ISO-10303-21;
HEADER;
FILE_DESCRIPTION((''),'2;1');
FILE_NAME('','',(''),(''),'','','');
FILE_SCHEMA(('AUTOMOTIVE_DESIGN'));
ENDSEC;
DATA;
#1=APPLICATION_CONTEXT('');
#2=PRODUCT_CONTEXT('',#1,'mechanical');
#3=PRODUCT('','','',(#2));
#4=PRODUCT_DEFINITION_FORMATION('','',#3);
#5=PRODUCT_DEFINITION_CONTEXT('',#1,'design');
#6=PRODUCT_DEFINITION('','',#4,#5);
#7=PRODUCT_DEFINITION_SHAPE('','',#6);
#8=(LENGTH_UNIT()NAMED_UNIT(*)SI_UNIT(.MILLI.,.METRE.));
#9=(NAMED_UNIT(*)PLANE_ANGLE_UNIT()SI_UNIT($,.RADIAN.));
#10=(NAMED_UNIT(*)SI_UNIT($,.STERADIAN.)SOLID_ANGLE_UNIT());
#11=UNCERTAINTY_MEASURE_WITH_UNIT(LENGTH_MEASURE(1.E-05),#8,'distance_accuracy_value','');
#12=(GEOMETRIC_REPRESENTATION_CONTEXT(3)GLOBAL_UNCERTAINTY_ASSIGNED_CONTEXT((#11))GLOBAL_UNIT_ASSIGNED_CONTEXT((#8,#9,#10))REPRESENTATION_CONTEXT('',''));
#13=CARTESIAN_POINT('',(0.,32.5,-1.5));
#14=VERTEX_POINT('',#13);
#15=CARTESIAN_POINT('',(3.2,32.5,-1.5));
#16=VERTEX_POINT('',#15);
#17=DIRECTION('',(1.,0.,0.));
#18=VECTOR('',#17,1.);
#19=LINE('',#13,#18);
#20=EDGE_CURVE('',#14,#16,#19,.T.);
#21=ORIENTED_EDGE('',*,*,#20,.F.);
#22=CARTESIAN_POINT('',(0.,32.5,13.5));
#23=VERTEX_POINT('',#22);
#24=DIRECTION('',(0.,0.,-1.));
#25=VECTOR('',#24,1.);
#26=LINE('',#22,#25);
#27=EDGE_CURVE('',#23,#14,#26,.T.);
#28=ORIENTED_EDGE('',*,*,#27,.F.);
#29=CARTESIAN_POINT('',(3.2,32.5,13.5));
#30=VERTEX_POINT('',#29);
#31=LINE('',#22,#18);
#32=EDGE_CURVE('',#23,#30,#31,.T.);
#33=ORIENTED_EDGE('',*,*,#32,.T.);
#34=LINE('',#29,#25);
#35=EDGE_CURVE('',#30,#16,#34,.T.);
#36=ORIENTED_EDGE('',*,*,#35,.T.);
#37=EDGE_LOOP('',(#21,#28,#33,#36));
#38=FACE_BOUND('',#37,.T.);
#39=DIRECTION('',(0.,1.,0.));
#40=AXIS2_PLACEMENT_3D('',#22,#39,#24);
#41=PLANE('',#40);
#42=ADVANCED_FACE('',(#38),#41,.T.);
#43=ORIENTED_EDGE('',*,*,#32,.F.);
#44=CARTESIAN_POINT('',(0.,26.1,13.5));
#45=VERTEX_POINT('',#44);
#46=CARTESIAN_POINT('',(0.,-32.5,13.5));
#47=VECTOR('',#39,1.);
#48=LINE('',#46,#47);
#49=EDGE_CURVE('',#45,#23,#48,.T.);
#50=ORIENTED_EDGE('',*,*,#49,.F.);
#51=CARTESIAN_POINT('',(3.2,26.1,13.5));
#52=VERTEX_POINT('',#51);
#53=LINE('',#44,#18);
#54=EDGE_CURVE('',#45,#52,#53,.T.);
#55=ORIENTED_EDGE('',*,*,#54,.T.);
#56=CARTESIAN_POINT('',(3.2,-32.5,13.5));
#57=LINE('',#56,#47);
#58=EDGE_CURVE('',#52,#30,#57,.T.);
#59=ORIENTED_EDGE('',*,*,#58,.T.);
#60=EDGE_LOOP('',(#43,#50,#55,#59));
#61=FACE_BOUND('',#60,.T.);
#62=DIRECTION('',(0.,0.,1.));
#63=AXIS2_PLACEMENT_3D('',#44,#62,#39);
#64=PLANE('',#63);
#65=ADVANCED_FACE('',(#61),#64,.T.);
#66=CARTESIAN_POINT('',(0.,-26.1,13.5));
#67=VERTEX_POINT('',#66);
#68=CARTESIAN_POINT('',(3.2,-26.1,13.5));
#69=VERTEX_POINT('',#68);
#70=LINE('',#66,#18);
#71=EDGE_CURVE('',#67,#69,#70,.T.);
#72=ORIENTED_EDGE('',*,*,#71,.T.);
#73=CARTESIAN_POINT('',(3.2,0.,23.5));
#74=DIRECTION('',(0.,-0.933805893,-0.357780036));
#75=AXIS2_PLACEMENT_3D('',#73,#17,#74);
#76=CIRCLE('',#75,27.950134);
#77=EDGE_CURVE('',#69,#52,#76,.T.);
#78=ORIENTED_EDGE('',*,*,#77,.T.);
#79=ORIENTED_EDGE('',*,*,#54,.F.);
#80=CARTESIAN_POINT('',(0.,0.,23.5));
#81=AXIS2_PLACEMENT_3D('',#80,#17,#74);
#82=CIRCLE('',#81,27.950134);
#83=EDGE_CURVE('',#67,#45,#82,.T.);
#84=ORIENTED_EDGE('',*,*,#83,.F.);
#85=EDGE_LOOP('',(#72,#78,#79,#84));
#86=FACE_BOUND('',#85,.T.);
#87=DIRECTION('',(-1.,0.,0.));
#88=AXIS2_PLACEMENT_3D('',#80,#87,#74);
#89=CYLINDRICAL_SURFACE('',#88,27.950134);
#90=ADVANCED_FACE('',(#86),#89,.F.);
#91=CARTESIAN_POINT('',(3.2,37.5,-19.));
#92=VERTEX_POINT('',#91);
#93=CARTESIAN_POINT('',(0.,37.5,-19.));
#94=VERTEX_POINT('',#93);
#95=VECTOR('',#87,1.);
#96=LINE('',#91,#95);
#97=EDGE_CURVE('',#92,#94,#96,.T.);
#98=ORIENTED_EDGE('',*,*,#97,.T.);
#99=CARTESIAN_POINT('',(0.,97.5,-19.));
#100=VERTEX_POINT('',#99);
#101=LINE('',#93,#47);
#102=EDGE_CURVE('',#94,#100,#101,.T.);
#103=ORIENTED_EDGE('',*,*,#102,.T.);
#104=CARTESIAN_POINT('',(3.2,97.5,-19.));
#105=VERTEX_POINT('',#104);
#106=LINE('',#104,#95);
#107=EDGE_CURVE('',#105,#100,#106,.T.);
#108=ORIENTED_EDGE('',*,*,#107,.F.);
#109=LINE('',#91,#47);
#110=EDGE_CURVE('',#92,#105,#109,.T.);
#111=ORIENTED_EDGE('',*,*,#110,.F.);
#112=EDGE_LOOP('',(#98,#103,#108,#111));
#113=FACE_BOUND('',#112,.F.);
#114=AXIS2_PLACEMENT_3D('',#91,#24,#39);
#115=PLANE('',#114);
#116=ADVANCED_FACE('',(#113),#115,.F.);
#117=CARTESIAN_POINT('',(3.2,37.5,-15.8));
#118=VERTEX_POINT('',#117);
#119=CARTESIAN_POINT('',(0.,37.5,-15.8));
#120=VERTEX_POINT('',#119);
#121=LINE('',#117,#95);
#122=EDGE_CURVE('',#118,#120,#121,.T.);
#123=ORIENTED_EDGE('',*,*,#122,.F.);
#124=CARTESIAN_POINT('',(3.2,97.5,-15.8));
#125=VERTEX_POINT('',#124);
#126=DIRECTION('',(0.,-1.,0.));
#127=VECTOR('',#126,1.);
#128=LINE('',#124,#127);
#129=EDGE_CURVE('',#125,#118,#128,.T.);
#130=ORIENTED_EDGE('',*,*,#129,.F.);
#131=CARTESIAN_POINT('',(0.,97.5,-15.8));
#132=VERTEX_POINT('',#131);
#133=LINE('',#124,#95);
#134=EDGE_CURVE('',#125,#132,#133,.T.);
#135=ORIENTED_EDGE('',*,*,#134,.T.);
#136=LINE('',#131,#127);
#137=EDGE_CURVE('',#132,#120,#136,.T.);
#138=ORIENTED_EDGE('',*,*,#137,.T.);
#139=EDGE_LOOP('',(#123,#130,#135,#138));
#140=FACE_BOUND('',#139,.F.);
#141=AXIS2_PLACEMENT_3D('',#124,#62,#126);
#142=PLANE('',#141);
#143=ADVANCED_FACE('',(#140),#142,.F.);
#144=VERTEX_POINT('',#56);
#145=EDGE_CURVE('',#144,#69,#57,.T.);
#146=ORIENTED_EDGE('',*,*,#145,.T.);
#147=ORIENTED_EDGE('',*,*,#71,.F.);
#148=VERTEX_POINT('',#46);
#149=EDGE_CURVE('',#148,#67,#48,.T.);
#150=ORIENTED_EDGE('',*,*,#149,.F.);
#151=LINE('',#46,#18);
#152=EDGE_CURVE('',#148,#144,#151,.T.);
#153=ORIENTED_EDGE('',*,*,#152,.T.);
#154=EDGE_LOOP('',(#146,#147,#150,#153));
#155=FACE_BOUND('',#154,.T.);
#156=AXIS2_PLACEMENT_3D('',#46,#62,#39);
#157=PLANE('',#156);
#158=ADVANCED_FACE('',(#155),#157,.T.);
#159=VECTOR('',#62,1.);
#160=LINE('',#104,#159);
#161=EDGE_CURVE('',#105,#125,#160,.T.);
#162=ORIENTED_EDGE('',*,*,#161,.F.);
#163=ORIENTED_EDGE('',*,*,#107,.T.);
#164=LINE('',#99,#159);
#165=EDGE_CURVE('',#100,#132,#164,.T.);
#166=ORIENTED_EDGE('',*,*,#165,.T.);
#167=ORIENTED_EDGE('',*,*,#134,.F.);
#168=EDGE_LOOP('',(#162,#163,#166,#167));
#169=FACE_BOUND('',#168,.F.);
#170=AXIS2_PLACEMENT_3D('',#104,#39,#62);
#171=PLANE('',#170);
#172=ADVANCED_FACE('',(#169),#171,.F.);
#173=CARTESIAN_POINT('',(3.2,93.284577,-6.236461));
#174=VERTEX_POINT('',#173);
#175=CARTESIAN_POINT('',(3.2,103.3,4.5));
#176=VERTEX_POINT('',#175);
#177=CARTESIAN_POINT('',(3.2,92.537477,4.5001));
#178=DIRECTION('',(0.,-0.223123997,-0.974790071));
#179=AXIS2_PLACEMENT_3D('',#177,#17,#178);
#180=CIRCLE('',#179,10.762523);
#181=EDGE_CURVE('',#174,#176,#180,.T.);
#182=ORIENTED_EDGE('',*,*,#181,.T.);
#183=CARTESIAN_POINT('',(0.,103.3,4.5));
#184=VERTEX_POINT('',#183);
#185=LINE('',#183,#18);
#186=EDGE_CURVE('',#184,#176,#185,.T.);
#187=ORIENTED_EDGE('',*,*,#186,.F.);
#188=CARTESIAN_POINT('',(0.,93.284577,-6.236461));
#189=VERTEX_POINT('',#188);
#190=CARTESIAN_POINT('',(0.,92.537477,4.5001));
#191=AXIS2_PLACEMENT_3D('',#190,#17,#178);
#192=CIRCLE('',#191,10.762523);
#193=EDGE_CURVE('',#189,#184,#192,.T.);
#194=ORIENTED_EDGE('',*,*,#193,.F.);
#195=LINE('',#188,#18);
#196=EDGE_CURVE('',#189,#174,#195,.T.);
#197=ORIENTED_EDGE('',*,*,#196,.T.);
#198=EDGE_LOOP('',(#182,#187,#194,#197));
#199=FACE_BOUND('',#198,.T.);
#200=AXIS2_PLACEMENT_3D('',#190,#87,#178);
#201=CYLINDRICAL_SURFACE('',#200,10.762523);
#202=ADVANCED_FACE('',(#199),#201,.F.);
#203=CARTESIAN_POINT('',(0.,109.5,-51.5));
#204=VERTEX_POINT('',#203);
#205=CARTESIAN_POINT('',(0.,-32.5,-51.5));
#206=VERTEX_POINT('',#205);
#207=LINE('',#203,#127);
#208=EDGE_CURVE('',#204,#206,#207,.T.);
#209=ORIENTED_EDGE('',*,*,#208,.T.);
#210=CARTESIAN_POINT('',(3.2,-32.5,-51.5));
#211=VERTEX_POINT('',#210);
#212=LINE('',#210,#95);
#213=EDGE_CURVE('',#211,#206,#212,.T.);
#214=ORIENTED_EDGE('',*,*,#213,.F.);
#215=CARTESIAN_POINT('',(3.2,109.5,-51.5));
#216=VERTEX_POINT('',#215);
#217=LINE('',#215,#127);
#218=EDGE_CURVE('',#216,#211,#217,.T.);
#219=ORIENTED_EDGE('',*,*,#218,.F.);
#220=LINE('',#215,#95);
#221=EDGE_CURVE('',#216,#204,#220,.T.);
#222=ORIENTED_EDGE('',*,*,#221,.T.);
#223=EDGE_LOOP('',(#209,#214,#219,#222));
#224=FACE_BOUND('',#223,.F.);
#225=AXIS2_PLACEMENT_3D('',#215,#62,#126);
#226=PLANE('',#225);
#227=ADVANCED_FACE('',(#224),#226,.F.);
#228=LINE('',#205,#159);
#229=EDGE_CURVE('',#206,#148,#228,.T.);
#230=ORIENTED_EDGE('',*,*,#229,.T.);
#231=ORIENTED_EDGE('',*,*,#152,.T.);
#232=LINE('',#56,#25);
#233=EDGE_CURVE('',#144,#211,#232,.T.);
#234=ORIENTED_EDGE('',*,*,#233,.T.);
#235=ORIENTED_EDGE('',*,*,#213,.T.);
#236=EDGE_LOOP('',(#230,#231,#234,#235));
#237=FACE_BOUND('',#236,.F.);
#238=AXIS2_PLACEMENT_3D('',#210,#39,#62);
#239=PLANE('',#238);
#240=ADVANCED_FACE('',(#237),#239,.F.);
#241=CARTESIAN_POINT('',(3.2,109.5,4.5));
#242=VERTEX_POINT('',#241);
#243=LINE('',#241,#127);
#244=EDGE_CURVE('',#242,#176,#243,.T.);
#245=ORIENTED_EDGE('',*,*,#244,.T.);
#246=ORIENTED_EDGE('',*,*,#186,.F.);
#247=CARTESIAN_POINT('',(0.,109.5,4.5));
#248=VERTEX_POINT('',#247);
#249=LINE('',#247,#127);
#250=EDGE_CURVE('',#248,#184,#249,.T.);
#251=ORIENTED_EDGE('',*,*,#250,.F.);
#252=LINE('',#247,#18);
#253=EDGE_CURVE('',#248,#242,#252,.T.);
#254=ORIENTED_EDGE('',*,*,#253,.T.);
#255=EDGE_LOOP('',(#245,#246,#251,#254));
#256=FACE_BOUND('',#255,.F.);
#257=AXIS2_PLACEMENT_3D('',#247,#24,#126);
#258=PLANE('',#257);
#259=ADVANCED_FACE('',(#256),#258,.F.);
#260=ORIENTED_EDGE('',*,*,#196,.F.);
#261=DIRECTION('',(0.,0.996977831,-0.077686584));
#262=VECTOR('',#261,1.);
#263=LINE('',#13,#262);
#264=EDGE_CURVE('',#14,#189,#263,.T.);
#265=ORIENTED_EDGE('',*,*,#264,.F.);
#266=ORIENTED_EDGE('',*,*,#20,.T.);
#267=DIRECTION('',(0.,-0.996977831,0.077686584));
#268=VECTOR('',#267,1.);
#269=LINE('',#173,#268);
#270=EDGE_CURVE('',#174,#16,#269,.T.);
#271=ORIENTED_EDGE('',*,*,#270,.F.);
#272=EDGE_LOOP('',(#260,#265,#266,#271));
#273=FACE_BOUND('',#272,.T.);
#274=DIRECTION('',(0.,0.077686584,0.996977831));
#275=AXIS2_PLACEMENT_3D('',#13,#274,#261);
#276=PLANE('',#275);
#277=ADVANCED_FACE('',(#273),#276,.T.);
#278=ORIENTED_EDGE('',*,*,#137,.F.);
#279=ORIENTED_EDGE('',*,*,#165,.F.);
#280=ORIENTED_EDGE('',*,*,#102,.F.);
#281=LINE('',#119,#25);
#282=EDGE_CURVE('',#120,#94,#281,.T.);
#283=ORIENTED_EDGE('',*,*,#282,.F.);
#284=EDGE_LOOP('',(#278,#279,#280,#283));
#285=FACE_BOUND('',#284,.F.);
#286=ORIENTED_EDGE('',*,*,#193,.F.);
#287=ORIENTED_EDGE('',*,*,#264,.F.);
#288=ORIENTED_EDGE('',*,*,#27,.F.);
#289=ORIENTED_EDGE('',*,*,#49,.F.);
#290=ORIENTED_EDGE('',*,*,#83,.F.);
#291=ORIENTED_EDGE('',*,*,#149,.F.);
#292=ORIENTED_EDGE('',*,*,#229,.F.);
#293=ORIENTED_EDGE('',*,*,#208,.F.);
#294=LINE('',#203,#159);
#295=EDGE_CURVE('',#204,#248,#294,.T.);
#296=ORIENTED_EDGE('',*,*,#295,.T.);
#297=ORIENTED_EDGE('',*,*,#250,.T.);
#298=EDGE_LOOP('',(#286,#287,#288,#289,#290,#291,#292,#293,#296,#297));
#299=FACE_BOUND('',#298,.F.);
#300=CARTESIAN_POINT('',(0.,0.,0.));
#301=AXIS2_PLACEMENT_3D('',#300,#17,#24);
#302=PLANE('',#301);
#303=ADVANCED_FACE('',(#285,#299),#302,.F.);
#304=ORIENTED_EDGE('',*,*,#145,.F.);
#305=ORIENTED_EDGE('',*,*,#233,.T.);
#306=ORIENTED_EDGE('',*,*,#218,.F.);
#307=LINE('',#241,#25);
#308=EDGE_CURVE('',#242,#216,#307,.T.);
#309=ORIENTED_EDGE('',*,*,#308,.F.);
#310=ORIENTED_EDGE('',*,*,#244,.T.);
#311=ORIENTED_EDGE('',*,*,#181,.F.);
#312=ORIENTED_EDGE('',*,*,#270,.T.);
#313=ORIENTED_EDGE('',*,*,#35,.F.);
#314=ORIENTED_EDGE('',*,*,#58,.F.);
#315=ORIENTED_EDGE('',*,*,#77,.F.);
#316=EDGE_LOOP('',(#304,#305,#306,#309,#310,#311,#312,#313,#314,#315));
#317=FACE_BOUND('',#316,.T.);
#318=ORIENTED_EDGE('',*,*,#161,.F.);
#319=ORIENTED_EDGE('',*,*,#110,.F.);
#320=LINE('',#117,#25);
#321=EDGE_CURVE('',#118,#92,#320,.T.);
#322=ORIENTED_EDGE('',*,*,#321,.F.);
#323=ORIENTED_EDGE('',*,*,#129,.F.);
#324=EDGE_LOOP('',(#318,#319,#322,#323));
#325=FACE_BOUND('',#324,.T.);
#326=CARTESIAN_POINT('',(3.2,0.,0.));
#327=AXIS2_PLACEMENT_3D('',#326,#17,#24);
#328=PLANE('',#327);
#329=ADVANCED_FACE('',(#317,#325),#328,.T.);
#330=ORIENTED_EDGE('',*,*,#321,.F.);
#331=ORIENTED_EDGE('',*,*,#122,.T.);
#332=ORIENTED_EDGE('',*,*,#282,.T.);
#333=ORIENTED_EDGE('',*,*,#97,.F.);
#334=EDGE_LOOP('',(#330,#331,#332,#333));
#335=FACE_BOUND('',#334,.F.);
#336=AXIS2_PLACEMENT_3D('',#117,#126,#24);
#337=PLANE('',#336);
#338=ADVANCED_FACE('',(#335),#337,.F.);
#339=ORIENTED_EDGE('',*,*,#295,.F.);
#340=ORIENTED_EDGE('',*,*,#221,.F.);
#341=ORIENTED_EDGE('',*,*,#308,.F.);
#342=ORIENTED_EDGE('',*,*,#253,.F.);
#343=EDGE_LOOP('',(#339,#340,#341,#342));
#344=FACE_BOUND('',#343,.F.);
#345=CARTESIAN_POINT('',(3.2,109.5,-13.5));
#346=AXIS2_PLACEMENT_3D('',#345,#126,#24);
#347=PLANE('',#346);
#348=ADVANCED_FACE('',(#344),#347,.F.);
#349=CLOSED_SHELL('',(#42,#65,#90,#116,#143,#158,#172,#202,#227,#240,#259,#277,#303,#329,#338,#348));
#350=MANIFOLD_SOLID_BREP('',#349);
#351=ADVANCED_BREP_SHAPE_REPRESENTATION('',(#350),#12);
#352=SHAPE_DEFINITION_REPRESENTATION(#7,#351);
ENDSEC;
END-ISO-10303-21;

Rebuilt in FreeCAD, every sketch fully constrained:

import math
import FreeCAD as App
import Part
import Sketcher
from FreeCAD import Vector

doc = App.newDocument("Part")
body = doc.addObject("PartDesign::Body", "Body")

# Sketch on YZ plane
sketch1 = doc.addObject("Sketcher::SketchObject", "Sketch")
body.addObject(sketch1)
sketch1.AttachmentSupport = (doc.YZ_Plane, [""])
sketch1.MapMode = "FlatFace"
sketch1.addGeometry([
    Part.LineSegment(Vector(-26, 14, 0), Vector(-32, 14, 0)),  # 0
    Part.LineSegment(Vector(-32, 14, 0), Vector(-32, -14, 0)),  # 1
    Part.LineSegment(Vector(-32, -14, 0), Vector(110, -14, 0)),  # 2
    Part.LineSegment(Vector(110, -14, 0), Vector(110, 4, 0)),  # 3
    Part.LineSegment(Vector(110, 4, 0), Vector(103, 4, 0)),  # 4
    Part.ArcOfCircle(Part.Circle(Vector(93, 4, 0), Vector(0, 0, 1), 11), math.radians(-86), math.radians(0)),  # 5
    Part.LineSegment(Vector(93, -6, 0), Vector(32, -2, 0)),  # 6
    Part.LineSegment(Vector(32, -2, 0), Vector(32, 14, 0)),  # 7
    Part.LineSegment(Vector(32, 14, 0), Vector(26, 14, 0)),  # 8
    Part.ArcOfCircle(Part.Circle(Vector(0, 24, 0), Vector(0, 0, 1), 28), math.radians(-159), math.radians(-21)),  # 9
], False)
sketch1.addConstraint([
    Sketcher.Constraint("Coincident", 0, 2, 1, 1),
    Sketcher.Constraint("Coincident", 1, 2, 2, 1),
    Sketcher.Constraint("Coincident", 2, 2, 3, 1),
    Sketcher.Constraint("Coincident", 3, 2, 4, 1),
    Sketcher.Constraint("Coincident", 4, 2, 5, 2),
    Sketcher.Constraint("Coincident", 5, 1, 6, 1),
    Sketcher.Constraint("Coincident", 6, 2, 7, 1),
    Sketcher.Constraint("Coincident", 7, 2, 8, 1),
    Sketcher.Constraint("Coincident", 8, 2, 9, 2),
    Sketcher.Constraint("Coincident", 9, 1, 0, 1),
    Sketcher.Constraint("Horizontal", 0),
    Sketcher.Constraint("Vertical", 1),
    Sketcher.Constraint("Horizontal", 2),
    Sketcher.Constraint("Vertical", 3),
    Sketcher.Constraint("Horizontal", 4),
    Sketcher.Constraint("Vertical", 7),
    Sketcher.Constraint("Horizontal", 8),
    Sketcher.Constraint("Symmetric", 1, 2, 7, 2, -1, 1),
    Sketcher.Constraint("Symmetric", 8, 2, 9, 1, -2),
    Sketcher.Constraint("Horizontal", 5, 3, 3, 2),
    Sketcher.Constraint("DistanceY", 1, 2, 1, 1, 27.0),
    Sketcher.Constraint("DistanceX", 0, 2, 0, 1, 6.4),
    Sketcher.Constraint("DistanceX", 4, 2, 4, 1, 6.2),
    Sketcher.Constraint("DistanceY", 0, 2, 9, 3, 10.0),
    Sketcher.Constraint("DistanceY", 6, 2, 5, 3, 6.0),
    Sketcher.Constraint("DistanceX", 1, 2, 6, 2, 65.0),
    Sketcher.Constraint("DistanceY", 1, 2, 6, 2, 12.0),
    Sketcher.Constraint("Radius", 5, 10.7624),
    Sketcher.Constraint("DistanceX", 2, 1, 2, 2, 142.0),
    Sketcher.Constraint("DistanceX", 5, 3, 5, 1, 0.747),
])
pad1 = doc.addObject("PartDesign::Pad", "Pad")
body.addObject(pad1)
pad1.Profile = sketch1
pad1.Length = 3.2

# Sketch on YZ plane
sketch2 = doc.addObject("Sketcher::SketchObject", "Sketch001")
body.addObject(sketch2)
sketch2.AttachmentSupport = (doc.YZ_Plane, [""])
sketch2.MapMode = "FlatFace"
sketch2.AttachmentOffset = App.Placement(Vector(0, 0, 3.2), App.Rotation())
sketch2.addGeometry([
    Part.LineSegment(Vector(110, -14, 0), Vector(-32, -14, 0)),
    Part.LineSegment(Vector(-32, -14, 0), Vector(-32, -52, 0)),
    Part.LineSegment(Vector(-32, -52, 0), Vector(110, -52, 0)),
    Part.LineSegment(Vector(110, -52, 0), Vector(110, -14, 0)),
], False)
sketch2.addConstraint([
    Sketcher.Constraint("Coincident", 0, 2, 1, 1),
    Sketcher.Constraint("Coincident", 1, 2, 2, 1),
    Sketcher.Constraint("Coincident", 2, 2, 3, 1),
    Sketcher.Constraint("Coincident", 3, 2, 0, 1),
    Sketcher.Constraint("Horizontal", 0),
    Sketcher.Constraint("Vertical", 1),
    Sketcher.Constraint("Horizontal", 2),
    Sketcher.Constraint("Vertical", 3),
    Sketcher.Constraint("DistanceY", 1, 2, 1, 1, 38.0),
    Sketcher.Constraint("DistanceX", 0, 2, 0, 1, 142.0),
    Sketcher.Constraint("DistanceX", 0, 2, -1, 1, 32.5),
    Sketcher.Constraint("DistanceY", 0, 2, -1, 1, 13.5),
])
pad2 = doc.addObject("PartDesign::Pad", "Pad001")
body.addObject(pad2)
pad2.Profile = sketch2
pad2.Length = 3.2
pad2.Reversed = True

# Sketch on YZ plane
sketch3 = doc.addObject("Sketcher::SketchObject", "Sketch002")
body.addObject(sketch3)
sketch3.AttachmentSupport = (doc.YZ_Plane, [""])
sketch3.MapMode = "FlatFace"
sketch3.AttachmentOffset = App.Placement(Vector(0, 0, 3.2), App.Rotation())
sketch3.addGeometry([
    Part.LineSegment(Vector(97.5, -15.8, 0), Vector(37.5, -15.8, 0)),
    Part.LineSegment(Vector(37.5, -15.8, 0), Vector(37.5, -19, 0)),
    Part.LineSegment(Vector(37.5, -19, 0), Vector(97.5, -19, 0)),
    Part.LineSegment(Vector(97.5, -19, 0), Vector(97.5, -15.8, 0)),
], False)
sketch3.addConstraint([
    Sketcher.Constraint("Coincident", 0, 2, 1, 1),
    Sketcher.Constraint("Coincident", 1, 2, 2, 1),
    Sketcher.Constraint("Coincident", 2, 2, 3, 1),
    Sketcher.Constraint("Coincident", 3, 2, 0, 1),
    Sketcher.Constraint("Horizontal", 0),
    Sketcher.Constraint("Vertical", 1),
    Sketcher.Constraint("Horizontal", 2),
    Sketcher.Constraint("Vertical", 3),
    Sketcher.Constraint("DistanceX", 0, 2, 0, 1, 60.0),
    Sketcher.Constraint("DistanceY", 1, 2, 1, 1, 3.2),
    Sketcher.Constraint("DistanceY", 1, 2, -1, 1, 19.0),
    Sketcher.Constraint("DistanceX", -1, 1, 0, 2, 37.5),
])
pocket1 = doc.addObject("PartDesign::Pocket", "Pocket")
body.addObject(pocket1)
pocket1.Profile = sketch3
pocket1.Length = 3.2

doc.recompute()
